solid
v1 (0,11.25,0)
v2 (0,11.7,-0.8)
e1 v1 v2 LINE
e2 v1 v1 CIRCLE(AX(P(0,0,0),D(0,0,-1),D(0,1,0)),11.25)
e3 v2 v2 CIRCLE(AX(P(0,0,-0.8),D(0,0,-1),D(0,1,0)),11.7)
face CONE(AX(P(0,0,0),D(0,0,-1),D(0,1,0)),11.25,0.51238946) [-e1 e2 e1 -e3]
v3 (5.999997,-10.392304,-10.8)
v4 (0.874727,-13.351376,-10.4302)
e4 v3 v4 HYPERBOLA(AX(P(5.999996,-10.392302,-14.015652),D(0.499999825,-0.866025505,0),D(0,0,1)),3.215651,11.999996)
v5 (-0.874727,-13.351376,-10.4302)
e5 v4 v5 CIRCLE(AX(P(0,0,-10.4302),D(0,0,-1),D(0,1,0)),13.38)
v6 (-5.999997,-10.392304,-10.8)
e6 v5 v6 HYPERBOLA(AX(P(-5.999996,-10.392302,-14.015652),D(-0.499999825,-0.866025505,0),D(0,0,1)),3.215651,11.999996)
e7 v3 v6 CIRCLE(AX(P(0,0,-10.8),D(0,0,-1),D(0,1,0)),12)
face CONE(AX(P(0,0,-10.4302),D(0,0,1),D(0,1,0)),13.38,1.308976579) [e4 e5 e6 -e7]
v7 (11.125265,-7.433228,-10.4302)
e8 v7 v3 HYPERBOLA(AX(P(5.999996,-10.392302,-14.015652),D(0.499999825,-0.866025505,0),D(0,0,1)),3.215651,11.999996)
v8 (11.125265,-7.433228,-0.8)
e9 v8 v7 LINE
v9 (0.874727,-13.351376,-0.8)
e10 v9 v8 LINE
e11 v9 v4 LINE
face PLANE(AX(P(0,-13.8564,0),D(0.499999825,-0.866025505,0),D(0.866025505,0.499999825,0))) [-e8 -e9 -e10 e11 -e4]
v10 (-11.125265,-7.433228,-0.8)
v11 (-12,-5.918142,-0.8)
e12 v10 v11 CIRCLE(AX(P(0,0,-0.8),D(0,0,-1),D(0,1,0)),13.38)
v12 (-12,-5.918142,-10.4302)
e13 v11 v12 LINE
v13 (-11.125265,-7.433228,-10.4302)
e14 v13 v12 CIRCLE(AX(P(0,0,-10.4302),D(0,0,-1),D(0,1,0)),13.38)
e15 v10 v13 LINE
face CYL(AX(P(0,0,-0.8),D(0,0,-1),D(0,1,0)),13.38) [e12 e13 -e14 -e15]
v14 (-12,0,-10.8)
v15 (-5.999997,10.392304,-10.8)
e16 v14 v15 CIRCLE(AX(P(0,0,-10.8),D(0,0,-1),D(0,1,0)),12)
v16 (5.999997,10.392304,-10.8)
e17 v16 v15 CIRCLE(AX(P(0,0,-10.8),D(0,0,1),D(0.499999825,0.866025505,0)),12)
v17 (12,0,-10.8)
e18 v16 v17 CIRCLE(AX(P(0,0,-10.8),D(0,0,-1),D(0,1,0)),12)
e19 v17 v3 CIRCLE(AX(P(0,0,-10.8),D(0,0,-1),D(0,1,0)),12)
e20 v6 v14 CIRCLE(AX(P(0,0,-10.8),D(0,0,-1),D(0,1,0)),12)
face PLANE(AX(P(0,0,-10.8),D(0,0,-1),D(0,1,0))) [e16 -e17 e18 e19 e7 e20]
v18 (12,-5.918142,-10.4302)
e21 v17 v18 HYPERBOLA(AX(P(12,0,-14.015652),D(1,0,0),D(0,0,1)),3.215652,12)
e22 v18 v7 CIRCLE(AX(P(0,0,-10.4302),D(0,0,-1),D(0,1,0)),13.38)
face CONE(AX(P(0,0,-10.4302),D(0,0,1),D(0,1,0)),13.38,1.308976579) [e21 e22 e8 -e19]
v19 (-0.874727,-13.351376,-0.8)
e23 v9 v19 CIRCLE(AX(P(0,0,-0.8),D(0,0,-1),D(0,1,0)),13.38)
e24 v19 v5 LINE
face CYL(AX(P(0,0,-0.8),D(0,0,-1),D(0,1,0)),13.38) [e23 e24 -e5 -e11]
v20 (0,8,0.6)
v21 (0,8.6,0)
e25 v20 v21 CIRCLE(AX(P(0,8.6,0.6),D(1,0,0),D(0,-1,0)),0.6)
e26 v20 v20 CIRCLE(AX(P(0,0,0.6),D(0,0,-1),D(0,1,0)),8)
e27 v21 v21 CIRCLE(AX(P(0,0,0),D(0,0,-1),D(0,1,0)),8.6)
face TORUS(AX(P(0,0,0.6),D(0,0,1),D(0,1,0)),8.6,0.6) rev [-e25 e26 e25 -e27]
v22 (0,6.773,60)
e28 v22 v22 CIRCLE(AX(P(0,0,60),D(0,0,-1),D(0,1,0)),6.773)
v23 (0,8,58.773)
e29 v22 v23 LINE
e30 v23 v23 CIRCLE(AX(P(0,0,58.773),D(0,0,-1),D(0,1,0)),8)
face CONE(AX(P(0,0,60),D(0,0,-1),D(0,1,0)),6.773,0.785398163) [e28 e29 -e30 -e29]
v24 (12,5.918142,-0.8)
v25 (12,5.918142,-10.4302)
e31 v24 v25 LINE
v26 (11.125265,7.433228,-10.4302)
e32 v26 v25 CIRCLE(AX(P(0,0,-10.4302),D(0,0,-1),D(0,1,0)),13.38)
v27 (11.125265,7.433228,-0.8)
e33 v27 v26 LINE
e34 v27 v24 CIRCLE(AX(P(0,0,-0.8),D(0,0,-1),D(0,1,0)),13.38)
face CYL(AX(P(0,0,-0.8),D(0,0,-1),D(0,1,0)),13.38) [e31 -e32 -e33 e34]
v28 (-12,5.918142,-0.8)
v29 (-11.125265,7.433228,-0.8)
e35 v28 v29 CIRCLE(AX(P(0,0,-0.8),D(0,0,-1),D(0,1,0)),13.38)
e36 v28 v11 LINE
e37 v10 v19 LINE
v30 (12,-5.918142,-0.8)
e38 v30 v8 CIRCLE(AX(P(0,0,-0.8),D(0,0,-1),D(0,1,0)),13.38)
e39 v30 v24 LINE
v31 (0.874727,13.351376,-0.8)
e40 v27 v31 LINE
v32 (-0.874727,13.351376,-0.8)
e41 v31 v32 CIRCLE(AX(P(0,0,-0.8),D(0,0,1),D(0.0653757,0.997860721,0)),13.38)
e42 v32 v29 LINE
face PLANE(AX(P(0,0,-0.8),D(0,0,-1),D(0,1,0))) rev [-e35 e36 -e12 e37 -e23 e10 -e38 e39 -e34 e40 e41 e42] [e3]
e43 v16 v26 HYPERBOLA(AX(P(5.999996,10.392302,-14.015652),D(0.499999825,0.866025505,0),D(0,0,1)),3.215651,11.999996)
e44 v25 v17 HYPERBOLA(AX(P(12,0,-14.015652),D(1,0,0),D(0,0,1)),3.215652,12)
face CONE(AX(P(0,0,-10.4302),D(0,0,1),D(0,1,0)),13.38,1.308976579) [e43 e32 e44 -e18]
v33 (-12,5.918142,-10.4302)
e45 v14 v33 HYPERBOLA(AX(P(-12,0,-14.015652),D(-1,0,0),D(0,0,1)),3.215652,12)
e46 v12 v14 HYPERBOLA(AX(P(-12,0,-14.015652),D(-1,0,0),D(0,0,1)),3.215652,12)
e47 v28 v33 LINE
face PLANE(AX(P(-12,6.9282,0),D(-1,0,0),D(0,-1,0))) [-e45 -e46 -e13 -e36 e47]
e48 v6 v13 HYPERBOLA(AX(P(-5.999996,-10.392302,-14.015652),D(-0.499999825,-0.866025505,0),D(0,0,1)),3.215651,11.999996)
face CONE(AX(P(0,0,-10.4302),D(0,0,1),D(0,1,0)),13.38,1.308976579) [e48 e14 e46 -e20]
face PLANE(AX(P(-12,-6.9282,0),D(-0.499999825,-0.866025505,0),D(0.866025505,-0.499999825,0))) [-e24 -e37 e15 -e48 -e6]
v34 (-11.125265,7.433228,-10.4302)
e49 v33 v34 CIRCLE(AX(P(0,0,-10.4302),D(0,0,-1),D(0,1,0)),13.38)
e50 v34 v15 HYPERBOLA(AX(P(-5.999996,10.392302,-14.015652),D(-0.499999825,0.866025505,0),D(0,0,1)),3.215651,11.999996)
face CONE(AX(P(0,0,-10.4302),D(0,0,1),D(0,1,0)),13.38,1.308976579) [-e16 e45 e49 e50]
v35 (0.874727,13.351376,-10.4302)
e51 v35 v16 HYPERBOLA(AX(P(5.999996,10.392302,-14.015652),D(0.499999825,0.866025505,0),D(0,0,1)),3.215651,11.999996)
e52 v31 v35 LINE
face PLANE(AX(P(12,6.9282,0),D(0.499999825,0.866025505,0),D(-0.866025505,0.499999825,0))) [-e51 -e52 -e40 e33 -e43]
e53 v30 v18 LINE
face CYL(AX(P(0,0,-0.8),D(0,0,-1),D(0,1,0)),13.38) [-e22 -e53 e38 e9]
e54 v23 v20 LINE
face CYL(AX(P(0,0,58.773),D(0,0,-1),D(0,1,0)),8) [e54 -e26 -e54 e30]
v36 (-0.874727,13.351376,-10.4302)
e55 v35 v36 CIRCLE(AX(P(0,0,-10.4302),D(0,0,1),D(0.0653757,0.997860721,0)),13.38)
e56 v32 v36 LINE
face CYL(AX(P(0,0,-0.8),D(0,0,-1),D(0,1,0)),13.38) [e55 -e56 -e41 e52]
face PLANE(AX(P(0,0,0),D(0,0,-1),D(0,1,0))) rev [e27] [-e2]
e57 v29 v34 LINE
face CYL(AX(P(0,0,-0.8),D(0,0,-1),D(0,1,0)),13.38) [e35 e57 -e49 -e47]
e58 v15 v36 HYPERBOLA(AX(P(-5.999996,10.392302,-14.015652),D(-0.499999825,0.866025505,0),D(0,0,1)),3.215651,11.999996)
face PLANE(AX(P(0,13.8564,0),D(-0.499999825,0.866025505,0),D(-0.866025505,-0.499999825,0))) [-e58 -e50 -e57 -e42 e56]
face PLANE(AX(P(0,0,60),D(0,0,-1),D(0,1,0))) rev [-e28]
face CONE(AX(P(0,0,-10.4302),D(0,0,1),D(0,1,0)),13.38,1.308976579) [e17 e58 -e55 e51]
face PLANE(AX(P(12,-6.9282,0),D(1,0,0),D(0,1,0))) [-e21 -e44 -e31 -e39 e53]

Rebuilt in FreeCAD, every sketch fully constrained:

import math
import FreeCAD as App
import Part
import Sketcher
from FreeCAD import Vector
Q = App.Units.Quantity


def add_polygon(sketch, points):
    """Adds a closed chain of lines whose ends are joined by coincident constraints."""
    first, n = sketch.GeometryCount, len(points)
    for a, b in zip(points, points[1:] + points[:1]):
        sketch.addGeometry(Part.LineSegment(App.Vector(*a, 0), App.Vector(*b, 0)), False)
    for i in range(n):
        sketch.addConstraint(Sketcher.Constraint("Coincident", first + i, 2, first + (i + 1) % n, 1))

doc = App.newDocument("Part")
body = doc.addObject("PartDesign::Body", "Body")

sketch1 = doc.addObject("Sketcher::SketchObject", "Sketch")
body.addObject(sketch1)
sketch1.AttachmentSupport = (doc.YZ_Plane, [""])
sketch1.MapMode = "FlatFace"
sketch1.addGeometry([
    Part.LineSegment(Vector(0, 60, 0), Vector(0, -10.8, 0)),
    Part.LineSegment(Vector(0, -10.8, 0), Vector(12, -10.8, 0)),
    Part.LineSegment(Vector(12, -10.8, 0), Vector(13.4, -10.4, 0)),
    Part.LineSegment(Vector(13.4, -10.4, 0), Vector(13.4, -0.8, 0)),
    Part.LineSegment(Vector(13.4, -0.8, 0), Vector(11.7, -0.8, 0)),
    Part.LineSegment(Vector(11.7, -0.8, 0), Vector(11.2, 0, 0)),
    Part.LineSegment(Vector(11.2, 0, 0), Vector(8.6, 0, 0)),
    Part.ArcOfCircle(Part.Circle(Vector(8.6, 0.6, 0), Vector(0, 0, 1), 0.6), math.radians(180), math.radians(270)),
    Part.LineSegment(Vector(8, 0.6, 0), Vector(8, 58.8, 0)),
    Part.LineSegment(Vector(8, 58.8, 0), Vector(6.8, 60, 0)),
    Part.LineSegment(Vector(6.8, 60, 0), Vector(0, 60, 0)),
], False)
sketch1.addConstraint([
    Sketcher.Constraint("Coincident", 0, 2, 1, 1),
    Sketcher.Constraint("Coincident", 1, 2, 2, 1),
    Sketcher.Constraint("Coincident", 2, 2, 3, 1),
    Sketcher.Constraint("Coincident", 3, 2, 4, 1),
    Sketcher.Constraint("Coincident", 4, 2, 5, 1),
    Sketcher.Constraint("Coincident", 5, 2, 6, 1),
    Sketcher.Constraint("Tangent", 6, 2, 7, 2),
    Sketcher.Constraint("Tangent", 7, 1, 8, 1),
    Sketcher.Constraint("Coincident", 8, 2, 9, 1),
    Sketcher.Constraint("Coincident", 9, 2, 10, 1),
    Sketcher.Constraint("Coincident", 10, 2, 0, 1),
    Sketcher.Constraint("Vertical", 0),
    Sketcher.Constraint("Horizontal", 1),
    Sketcher.Constraint("Vertical", 3),
    Sketcher.Constraint("Horizontal", 4),
    Sketcher.Constraint("Horizontal", 6),
    Sketcher.Constraint("Vertical", 8),
    Sketcher.Constraint("Horizontal", 10),
    Sketcher.Constraint("PointOnObject", 0, 2, -2),
    Sketcher.Constraint("PointOnObject", 5, 2, -1),
    Sketcher.Constraint("Radius", 7, Q("0.6 mm")),
    Sketcher.Constraint("DistanceX", 1, 1, 1, 2, Q("12 mm")),
    Sketcher.Constraint("Angle", 2, Q("15.0012 deg")),
    Sketcher.Constraint("Angle", 9, Q("135 deg")),
    Sketcher.Constraint("DistanceY", 0, 2, 0, 1, Q("70.8 mm")),
    Sketcher.Constraint("DistanceX", -1, 1, 7, 1, Q("8 mm")),
    Sketcher.Constraint("DistanceY", -1, 1, 9, 2, Q("60 mm")),
    Sketcher.Constraint("DistanceY", 1, 2, 3, 2, Q("10 mm")),
    Sketcher.Constraint("DistanceX", 4, 2, 4, 1, Q("1.68 mm")),
    Sketcher.Constraint("DistanceX", 6, 2, 6, 1, Q("2.65 mm")),
    Sketcher.Constraint("DistanceX", -1, 1, 4, 2, Q("11.7 mm")),
    Sketcher.Constraint("DistanceX", 10, 2, 10, 1, Q("6.773 mm")),
])
revolution = doc.addObject("PartDesign::Revolution", "Revolution")
body.addObject(revolution)
revolution.Profile = sketch1
revolution.ReferenceAxis = (sketch1, ["V_Axis"])
revolution.Angle = 360

sketch2 = doc.addObject("Sketcher::SketchObject", "Sketch001")
body.addObject(sketch2)
sketch2.AttachmentSupport = (doc.XY_Plane, [""])
sketch2.MapMode = "FlatFace"
add_polygon(sketch2, [(-24, 24), (-24, -24), (24, -24), (24, 24)])
add_polygon(sketch2, [(0, -14), (-12, -7), (-12, 7), (0, 14), (12, 7), (12, -7)])
sketch2.addConstraint([
    Sketcher.Constraint("Vertical", 0),
    Sketcher.Constraint("Horizontal", 1),
    Sketcher.Constraint("Vertical", 2),
    Sketcher.Constraint("Horizontal", 3),
    Sketcher.Constraint("Vertical", 5),
    Sketcher.Constraint("Vertical", 8),
    Sketcher.Constraint("Symmetric", 0, 2, 2, 2, -1, 1),
    Sketcher.Constraint("Symmetric", 4, 2, 7, 2, -1, 1),
    Sketcher.Constraint("Symmetric", 6, 2, 9, 2, -1, 1),
    Sketcher.Constraint("PointOnObject", 6, 2, -2),
    Sketcher.Constraint("Parallel", 6, 9),
    Sketcher.Constraint("Horizontal", 5, 2, 7, 2),
    Sketcher.Constraint("Equal", 3, 0),
    Sketcher.Constraint("DistanceX", 1, 1, 1, 2, Q("48 mm")),
    Sketcher.Constraint("Angle", 4, Q("150 deg")),
    Sketcher.Constraint("DistanceX", 4, 2, -1, 1, Q("12 mm")),
    Sketcher.Constraint("DistanceY", 5, 1, 5, 2, Q("13.8564 mm")),
])
pocket1 = doc.addObject("PartDesign::Pocket", "Pocket")
body.addObject(pocket1)
pocket1.Profile = sketch2
pocket1.Length = 10.8

doc.recompute()
